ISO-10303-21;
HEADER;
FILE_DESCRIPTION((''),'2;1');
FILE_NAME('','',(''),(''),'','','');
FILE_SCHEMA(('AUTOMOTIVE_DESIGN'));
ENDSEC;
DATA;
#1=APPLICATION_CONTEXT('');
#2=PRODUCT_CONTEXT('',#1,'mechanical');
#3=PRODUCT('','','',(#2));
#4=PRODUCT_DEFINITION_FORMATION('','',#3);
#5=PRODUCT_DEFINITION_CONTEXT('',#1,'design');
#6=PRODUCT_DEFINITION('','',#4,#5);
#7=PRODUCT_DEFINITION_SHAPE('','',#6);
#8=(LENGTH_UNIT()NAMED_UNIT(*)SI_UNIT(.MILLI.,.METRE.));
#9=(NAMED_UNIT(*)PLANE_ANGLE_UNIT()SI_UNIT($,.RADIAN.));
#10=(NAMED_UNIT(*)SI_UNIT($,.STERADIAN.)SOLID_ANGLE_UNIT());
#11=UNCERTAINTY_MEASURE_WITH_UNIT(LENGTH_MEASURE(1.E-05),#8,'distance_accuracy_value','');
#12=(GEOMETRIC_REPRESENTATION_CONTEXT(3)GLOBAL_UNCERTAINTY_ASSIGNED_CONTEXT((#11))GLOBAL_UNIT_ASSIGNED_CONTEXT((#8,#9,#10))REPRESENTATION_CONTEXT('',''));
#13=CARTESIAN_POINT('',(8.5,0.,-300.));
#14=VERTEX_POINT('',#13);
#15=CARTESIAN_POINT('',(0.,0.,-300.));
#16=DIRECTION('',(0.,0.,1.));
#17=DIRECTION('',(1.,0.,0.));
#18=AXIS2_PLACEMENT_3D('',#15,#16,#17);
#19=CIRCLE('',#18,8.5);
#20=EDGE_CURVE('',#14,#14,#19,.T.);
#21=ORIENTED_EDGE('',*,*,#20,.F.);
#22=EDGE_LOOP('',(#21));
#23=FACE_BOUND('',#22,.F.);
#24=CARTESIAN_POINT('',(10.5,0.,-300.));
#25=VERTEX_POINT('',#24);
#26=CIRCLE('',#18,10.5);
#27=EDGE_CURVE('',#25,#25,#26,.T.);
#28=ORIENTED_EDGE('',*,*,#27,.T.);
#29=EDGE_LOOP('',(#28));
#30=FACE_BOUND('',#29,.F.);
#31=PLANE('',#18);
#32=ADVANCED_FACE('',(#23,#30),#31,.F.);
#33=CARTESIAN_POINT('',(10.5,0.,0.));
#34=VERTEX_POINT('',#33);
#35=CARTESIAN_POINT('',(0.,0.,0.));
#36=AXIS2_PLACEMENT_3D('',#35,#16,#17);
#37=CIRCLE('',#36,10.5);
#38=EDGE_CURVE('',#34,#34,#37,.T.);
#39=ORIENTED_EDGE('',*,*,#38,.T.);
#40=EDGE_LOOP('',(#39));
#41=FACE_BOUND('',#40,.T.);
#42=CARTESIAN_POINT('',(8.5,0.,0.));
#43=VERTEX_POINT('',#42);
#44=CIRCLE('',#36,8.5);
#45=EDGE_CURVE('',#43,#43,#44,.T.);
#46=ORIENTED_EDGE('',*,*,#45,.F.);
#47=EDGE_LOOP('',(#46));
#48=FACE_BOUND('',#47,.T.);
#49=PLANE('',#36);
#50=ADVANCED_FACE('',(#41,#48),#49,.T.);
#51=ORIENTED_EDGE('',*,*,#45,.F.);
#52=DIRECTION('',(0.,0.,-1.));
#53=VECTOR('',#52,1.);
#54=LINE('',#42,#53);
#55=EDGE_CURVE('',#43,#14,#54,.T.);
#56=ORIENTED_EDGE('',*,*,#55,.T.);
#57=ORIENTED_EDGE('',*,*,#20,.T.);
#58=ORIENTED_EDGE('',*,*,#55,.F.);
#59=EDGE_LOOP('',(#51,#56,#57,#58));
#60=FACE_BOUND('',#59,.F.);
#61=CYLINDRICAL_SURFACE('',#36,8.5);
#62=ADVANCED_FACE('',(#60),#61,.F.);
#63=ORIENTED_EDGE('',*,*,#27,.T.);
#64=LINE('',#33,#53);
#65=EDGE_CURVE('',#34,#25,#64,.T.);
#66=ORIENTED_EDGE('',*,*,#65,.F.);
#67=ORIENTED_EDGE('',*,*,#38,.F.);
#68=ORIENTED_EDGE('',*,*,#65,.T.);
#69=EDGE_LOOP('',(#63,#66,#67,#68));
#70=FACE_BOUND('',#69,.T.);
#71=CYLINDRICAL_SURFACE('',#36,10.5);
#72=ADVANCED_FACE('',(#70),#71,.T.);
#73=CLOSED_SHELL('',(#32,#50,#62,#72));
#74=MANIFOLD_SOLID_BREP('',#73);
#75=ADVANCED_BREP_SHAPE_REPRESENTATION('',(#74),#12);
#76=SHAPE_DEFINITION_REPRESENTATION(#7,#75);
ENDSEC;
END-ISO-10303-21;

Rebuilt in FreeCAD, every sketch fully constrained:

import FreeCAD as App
import Part
import Sketcher

V = App.Vector

doc = App.newDocument("Part")
body = doc.addObject("PartDesign::Body", "Body")

# Sketch on XY plane
sketch1 = doc.addObject("Sketcher::SketchObject", "Sketch")
body.addObject(sketch1)
sketch1.AttachmentSupport = (doc.XY_Plane, [""])
sketch1.MapMode = "FlatFace"
sketch1.addGeometry(Part.Circle(V(0, 0, 0), V(0, 0, 1), 10), False)
sketch1.addGeometry(Part.Circle(V(0, 0, 0), V(0, 0, 1), 8), False)
sketch1.addConstraint(Sketcher.Constraint("Coincident", 0, 3, -1, 1))
sketch1.addConstraint(Sketcher.Constraint("Coincident", 1, 3, -1, 1))
sketch1.addConstraint(Sketcher.Constraint("Diameter", 0, 21.0))
sketch1.addConstraint(Sketcher.Constraint("Diameter", 1, 17.0))
pad1 = doc.addObject("PartDesign::Pad", "Pad")
body.addObject(pad1)
pad1.Profile = sketch1
pad1.Length = 300
pad1.Reversed = True

doc.recompute()
